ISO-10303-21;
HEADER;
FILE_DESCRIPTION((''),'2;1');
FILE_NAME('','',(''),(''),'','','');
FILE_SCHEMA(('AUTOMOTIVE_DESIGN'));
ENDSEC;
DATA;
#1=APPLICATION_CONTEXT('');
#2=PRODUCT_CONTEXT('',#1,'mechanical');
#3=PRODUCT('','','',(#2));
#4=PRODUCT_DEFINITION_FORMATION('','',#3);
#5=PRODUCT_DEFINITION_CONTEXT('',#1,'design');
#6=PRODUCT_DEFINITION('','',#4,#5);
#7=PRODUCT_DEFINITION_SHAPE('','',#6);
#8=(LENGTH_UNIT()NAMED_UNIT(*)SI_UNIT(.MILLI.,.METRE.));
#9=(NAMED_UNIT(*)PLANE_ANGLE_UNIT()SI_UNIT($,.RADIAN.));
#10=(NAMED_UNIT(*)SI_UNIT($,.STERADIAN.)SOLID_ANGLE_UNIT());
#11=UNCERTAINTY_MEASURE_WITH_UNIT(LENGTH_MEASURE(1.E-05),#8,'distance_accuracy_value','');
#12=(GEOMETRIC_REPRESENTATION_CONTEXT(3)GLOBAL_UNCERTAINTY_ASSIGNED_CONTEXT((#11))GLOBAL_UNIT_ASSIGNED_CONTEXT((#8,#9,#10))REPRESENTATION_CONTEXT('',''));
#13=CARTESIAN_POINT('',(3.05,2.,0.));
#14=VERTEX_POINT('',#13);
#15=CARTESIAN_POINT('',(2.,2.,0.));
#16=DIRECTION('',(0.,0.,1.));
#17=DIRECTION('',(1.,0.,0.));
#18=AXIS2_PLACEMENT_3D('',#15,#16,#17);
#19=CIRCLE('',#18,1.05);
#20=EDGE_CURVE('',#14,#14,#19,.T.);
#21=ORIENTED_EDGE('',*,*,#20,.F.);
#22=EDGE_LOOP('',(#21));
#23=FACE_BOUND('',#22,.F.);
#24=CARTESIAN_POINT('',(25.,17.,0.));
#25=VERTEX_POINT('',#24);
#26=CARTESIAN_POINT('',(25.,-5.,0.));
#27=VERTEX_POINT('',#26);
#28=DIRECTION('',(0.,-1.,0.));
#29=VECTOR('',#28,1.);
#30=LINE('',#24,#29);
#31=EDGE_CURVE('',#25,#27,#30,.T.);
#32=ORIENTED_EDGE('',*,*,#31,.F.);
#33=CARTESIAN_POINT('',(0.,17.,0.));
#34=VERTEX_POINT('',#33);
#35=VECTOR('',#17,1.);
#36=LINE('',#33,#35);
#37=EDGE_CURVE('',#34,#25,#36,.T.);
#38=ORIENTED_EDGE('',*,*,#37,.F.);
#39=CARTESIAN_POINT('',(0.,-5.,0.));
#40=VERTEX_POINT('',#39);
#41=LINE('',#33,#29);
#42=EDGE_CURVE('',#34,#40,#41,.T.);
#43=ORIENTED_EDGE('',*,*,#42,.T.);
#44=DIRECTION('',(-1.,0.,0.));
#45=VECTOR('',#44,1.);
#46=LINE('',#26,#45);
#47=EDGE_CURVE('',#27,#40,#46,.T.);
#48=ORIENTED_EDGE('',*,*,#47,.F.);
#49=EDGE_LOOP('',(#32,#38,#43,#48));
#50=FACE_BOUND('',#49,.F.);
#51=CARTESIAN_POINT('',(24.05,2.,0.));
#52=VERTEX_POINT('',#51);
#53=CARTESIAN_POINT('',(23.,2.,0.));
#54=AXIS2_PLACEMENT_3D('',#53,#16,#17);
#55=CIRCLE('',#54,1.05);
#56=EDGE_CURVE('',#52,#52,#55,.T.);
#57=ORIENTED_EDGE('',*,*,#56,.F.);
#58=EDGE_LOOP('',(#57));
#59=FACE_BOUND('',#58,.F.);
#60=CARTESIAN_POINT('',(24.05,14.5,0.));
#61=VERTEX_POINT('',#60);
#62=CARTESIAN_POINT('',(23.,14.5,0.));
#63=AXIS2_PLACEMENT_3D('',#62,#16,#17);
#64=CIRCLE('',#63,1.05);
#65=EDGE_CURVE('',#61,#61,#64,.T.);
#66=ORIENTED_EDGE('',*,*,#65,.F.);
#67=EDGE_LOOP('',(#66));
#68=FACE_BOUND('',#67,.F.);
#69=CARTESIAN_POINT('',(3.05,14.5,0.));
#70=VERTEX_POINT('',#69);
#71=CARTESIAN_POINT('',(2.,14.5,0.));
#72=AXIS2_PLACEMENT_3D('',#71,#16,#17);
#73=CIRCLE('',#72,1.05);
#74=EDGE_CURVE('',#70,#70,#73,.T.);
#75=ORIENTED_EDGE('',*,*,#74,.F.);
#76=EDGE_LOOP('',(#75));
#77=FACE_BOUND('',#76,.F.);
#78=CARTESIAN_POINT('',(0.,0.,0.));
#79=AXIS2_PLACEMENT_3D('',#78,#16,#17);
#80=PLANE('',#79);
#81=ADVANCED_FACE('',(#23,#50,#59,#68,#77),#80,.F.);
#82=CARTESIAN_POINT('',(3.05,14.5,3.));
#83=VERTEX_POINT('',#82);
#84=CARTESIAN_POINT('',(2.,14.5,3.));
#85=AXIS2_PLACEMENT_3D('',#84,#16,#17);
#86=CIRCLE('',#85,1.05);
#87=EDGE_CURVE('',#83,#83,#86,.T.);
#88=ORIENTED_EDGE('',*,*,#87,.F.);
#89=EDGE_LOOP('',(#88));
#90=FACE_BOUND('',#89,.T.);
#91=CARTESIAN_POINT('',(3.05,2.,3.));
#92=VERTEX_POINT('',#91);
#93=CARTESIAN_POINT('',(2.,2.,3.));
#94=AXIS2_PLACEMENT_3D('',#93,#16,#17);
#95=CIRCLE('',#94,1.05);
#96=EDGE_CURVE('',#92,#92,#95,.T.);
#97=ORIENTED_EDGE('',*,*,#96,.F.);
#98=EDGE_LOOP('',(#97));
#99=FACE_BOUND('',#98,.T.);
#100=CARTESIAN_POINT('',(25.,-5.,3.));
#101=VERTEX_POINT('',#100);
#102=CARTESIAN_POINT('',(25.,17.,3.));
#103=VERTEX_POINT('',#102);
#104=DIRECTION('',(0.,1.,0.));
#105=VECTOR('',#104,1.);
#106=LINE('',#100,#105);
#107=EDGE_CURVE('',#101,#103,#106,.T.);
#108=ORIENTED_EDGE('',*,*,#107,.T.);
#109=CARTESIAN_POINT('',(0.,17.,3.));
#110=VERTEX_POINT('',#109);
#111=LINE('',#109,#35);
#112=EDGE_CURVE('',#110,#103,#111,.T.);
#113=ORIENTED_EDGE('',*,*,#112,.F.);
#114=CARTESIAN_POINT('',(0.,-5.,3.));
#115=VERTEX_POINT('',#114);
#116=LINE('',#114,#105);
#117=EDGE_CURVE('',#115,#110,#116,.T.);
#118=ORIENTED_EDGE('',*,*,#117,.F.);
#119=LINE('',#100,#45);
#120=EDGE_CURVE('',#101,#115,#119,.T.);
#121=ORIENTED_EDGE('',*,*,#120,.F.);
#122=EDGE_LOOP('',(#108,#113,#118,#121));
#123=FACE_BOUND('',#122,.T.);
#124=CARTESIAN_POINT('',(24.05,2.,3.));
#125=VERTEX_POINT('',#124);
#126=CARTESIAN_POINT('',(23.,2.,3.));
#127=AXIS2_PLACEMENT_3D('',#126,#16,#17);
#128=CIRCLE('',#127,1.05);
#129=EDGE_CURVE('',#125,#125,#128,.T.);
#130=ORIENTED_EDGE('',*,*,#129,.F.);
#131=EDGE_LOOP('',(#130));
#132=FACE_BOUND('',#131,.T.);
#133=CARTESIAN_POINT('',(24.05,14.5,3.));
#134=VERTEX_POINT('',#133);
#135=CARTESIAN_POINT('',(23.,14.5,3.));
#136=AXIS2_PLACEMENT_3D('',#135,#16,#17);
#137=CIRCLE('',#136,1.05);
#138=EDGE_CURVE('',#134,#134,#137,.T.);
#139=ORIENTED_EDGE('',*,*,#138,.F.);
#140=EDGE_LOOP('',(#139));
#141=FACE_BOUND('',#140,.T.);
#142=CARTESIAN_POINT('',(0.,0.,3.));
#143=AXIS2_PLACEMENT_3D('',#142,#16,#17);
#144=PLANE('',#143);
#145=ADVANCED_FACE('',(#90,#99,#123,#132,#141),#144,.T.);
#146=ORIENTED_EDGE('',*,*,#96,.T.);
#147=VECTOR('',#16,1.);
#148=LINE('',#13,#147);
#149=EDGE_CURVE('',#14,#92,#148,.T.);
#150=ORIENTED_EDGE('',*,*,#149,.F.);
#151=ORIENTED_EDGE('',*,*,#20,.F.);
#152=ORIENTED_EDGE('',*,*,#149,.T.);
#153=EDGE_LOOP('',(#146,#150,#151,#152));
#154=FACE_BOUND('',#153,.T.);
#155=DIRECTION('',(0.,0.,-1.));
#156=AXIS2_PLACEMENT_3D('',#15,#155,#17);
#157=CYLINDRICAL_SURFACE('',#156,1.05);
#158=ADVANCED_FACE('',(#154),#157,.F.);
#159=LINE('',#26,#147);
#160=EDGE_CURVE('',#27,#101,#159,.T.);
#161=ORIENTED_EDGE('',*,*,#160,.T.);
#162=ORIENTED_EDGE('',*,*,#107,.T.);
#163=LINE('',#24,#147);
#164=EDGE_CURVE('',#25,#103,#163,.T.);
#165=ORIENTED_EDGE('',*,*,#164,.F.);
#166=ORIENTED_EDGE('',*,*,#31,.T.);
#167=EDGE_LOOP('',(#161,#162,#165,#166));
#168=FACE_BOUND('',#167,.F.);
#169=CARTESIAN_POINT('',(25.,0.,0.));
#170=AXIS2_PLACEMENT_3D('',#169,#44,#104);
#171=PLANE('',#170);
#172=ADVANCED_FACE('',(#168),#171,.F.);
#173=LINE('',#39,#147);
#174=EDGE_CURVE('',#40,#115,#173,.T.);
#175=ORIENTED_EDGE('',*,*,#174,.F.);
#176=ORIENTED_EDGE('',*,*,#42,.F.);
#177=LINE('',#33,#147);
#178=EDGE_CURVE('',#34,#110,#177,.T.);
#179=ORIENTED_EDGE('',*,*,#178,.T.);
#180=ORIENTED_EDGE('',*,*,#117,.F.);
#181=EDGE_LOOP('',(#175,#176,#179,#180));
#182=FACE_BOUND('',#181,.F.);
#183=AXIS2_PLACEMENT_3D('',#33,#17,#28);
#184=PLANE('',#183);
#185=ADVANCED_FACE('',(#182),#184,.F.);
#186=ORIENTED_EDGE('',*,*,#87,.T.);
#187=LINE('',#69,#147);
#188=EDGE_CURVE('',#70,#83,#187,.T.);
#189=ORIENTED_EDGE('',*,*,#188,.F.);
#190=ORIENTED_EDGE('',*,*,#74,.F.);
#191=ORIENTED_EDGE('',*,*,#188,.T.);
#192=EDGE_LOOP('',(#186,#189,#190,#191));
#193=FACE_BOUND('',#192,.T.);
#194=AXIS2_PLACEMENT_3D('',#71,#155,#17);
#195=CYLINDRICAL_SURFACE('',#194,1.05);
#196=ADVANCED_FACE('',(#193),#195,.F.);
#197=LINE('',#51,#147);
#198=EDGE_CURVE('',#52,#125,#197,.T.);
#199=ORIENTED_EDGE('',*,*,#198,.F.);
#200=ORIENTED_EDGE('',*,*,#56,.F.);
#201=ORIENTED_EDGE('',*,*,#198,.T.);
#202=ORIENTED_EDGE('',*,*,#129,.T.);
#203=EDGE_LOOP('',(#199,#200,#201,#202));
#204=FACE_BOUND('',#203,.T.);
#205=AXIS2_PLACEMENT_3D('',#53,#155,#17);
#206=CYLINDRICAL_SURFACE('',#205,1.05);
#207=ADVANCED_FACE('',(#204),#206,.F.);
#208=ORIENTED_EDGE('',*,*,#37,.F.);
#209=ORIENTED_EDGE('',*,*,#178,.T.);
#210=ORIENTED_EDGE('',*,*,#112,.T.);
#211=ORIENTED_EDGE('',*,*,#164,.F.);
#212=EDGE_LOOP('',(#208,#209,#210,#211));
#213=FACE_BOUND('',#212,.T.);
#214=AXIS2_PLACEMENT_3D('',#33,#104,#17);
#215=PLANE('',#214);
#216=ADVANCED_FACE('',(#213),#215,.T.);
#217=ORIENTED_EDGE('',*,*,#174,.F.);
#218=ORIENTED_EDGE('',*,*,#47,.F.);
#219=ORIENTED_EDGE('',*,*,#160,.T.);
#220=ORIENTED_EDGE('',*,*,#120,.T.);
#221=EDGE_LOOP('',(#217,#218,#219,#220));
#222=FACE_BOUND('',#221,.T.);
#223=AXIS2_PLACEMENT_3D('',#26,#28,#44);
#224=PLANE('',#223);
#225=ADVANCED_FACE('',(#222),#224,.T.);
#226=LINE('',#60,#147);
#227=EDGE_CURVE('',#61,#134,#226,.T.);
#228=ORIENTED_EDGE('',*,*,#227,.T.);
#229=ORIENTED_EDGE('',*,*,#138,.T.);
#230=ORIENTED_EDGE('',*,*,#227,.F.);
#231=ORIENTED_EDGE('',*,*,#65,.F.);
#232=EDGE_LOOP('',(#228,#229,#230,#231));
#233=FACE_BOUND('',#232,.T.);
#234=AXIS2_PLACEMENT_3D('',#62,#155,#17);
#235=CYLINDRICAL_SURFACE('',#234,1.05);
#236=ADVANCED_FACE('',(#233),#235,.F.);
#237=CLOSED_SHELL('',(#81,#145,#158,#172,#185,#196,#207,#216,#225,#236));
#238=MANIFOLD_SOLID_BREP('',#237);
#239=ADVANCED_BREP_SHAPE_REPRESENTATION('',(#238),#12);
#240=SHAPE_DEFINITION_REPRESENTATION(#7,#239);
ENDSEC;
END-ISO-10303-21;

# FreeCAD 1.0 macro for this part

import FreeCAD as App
import Part
import Sketcher

V = App.Vector
Q = App.Units.Quantity

doc = App.newDocument("Part")
body = doc.addObject("PartDesign::Body", "Body")

# Sketch on XY plane
sketch1 = body.newObject("Sketcher::SketchObject", "Sketch")
sketch1.AttachmentSupport = (doc.getObject("XY_Plane"), [""])
sketch1.MapMode = "FlatFace"
sketch1.addGeometry([
    Part.LineSegment(V(0, 17, 0), V(0, -5, 0)),  # 0
    Part.LineSegment(V(0, -5, 0), V(25, -5, 0)),  # 1
    Part.LineSegment(V(25, -5, 0), V(25, 17, 0)),  # 2
    Part.LineSegment(V(25, 17, 0), V(0, 17, 0)),  # 3
    Part.Circle(V(2, 2, 0), V(0, 0, 1), 1.05),  # 4
    Part.Circle(V(23, 2, 0), V(0, 0, 1), 1.05),  # 5
    Part.Circle(V(2, 14.5, 0), V(0, 0, 1), 1.05),  # 6
    Part.Circle(V(23, 14.5, 0), V(0, 0, 1), 1.05),  # 7
], False)
sketch1.addConstraint([
    Sketcher.Constraint("Coincident", 0, 2, 1, 1),
    Sketcher.Constraint("Coincident", 1, 2, 2, 1),
    Sketcher.Constraint("Coincident", 2, 2, 3, 1),
    Sketcher.Constraint("Coincident", 3, 2, 0, 1),
    Sketcher.Constraint("Vertical", 0),
    Sketcher.Constraint("Horizontal", 1),
    Sketcher.Constraint("Vertical", 2),
    Sketcher.Constraint("Horizontal", 3),
    Sketcher.Constraint("Equal", 4, 5),
    Sketcher.Constraint("Equal", 5, 6),
    Sketcher.Constraint("Equal", 6, 7),
    Sketcher.Constraint("PointOnObject", 0, 2, -2),
    Sketcher.Constraint("Horizontal", 4, 3, 5, 3),
    Sketcher.Constraint("Horizontal", 6, 3, 7, 3),
    Sketcher.Constraint("Vertical", 4, 3, 6, 3),
    Sketcher.Constraint("Vertical", 5, 3, 7, 3),
    Sketcher.Constraint("Diameter", 4, Q("2.1 mm")),
    Sketcher.Constraint("DistanceX", 1, 1, 1, 2, Q("25 mm")),
    Sketcher.Constraint("DistanceX", -1, 1, 4, 3, Q("2 mm")),
    Sketcher.Constraint("DistanceY", -1, 1, 4, 3, Q("2 mm")),
    Sketcher.Constraint("DistanceY", 0, 2, -1, 1, Q("5 mm")),
    Sketcher.Constraint("DistanceX", 4, 3, 5, 3, Q("21 mm")),
    Sketcher.Constraint("DistanceY", 4, 3, 6, 3, Q("12.5 mm")),
    Sketcher.Constraint("DistanceY", 0, 2, 0, 1, Q("22 mm")),
])
pad1 = body.newObject("PartDesign::Pad", "Pad")
pad1.Profile = sketch1
pad1.Length = 3

doc.recompute()
